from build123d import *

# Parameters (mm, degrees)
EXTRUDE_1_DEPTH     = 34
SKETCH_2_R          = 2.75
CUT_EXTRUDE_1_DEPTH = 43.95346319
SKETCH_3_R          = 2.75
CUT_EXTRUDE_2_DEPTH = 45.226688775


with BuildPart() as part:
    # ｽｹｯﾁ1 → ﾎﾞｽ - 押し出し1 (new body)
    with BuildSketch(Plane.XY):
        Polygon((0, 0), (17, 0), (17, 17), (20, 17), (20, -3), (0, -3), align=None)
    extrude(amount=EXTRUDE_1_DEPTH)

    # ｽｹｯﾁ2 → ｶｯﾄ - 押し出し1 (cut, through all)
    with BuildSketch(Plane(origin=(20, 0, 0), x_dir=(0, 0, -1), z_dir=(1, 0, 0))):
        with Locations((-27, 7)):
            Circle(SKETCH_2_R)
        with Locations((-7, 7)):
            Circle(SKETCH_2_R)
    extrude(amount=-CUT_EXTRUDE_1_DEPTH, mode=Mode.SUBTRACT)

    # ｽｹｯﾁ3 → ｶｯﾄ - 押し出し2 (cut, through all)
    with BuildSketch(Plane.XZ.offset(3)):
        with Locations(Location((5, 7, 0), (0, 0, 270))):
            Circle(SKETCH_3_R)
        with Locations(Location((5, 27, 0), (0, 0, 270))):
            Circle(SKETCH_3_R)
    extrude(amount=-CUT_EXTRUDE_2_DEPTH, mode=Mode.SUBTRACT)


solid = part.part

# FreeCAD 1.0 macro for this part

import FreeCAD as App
import Part
import Sketcher
Q = App.Units.Quantity


def add_polygon(sketch, points):
    """Adds a closed chain of lines whose ends are joined by coincident constraints."""
    first, n = sketch.GeometryCount, len(points)
    for a, b in zip(points, points[1:] + points[:1]):
        sketch.addGeometry(Part.LineSegment(App.Vector(*a, 0), App.Vector(*b, 0)), False)
    for i in range(n):
        sketch.addConstraint(Sketcher.Constraint("Coincident", first + i, 2, first + (i + 1) % n, 1))

doc = App.newDocument("Part")
params = doc.addObject("Spreadsheet::Sheet", "Params")
for row, (alias, value) in enumerate([
    ("sketch1_width", "17 mm"),
    ("sketch1_width2", "20 mm"),
    ("pad1_length", "34 mm"),
    ("sketch2_diameter", "5.5 mm"),
    ("sketch3_diameter", "5.5 mm"),
], start=1):
    params.set(f"A{row}", alias)
    params.set(f"B{row}", "=" + value)
    params.setAlias(f"B{row}", alias)

body = doc.addObject("PartDesign::Body", "Body")

sketch1 = doc.addObject("Sketcher::SketchObject", "Sketch")
body.addObject(sketch1)
sketch1.AttachmentSupport = (doc.XY_Plane, [""])
sketch1.MapMode = "FlatFace"
add_polygon(sketch1, [(17, 0), (0, 0), (0, -3), (20, -3), (20, 17), (17, 17)])
sketch1.addConstraint(Sketcher.Constraint("Horizontal", 0))
sketch1.addConstraint(Sketcher.Constraint("Vertical", 1))
sketch1.addConstraint(Sketcher.Constraint("Horizontal", 2))
sketch1.addConstraint(Sketcher.Constraint("Vertical", 3))
sketch1.addConstraint(Sketcher.Constraint("Horizontal", 4))
sketch1.addConstraint(Sketcher.Constraint("Vertical", 5))
sketch1.addConstraint(Sketcher.Constraint("Coincident", 0, 2, -1, 1))
sketch1.addConstraint(Sketcher.Constraint("Equal", 4, 1))
sketch1.addConstraint(Sketcher.Constraint("Equal", 2, 3))
sketch1.addConstraint(Sketcher.Constraint("DistanceX", 0, 2, 0, 1, Q("17 mm")))
sketch1.addConstraint(Sketcher.Constraint("DistanceX", 2, 1, 2, 2, Q("20 mm")))
sketch1.setExpression("Constraints[15]", "Params.sketch1_width")
sketch1.setExpression("Constraints[16]", "Params.sketch1_width2")
pad1 = doc.addObject("PartDesign::Pad", "Pad")
body.addObject(pad1)
pad1.Profile = sketch1
pad1.setExpression("Length", "Params.pad1_length")

sketch2 = doc.addObject("Sketcher::SketchObject", "Sketch001")
body.addObject(sketch2)
sketch2.AttachmentSupport = (doc.YZ_Plane, [""])
sketch2.MapMode = "FlatFace"
sketch2.AttachmentOffset = App.Placement(App.Vector(0, 0, 20), App.Rotation())
sketch2.addGeometry(Part.Circle(App.Vector(7, 27, 0), App.Vector(0, 0, 1), 2.8), False)
sketch2.addGeometry(Part.Circle(App.Vector(7, 7, 0), App.Vector(0, 0, 1), 2.8), False)
sketch2.addConstraint(Sketcher.Constraint("Equal", 0, 1))
sketch2.addConstraint(Sketcher.Constraint("Vertical", 0, 3, 1, 3))
sketch2.addConstraint(Sketcher.Constraint("Diameter", 0, Q("5.5 mm")))
sketch2.addConstraint(Sketcher.Constraint("DistanceX", -1, 1, 0, 3, Q("7 mm")))
sketch2.addConstraint(Sketcher.Constraint("DistanceY", -1, 1, 0, 3, Q("27 mm")))
sketch2.addConstraint(Sketcher.Constraint("DistanceY", -1, 1, 1, 3, Q("7 mm")))
sketch2.setExpression("Constraints[2]", "Params.sketch2_diameter")
pocket1 = doc.addObject("PartDesign::Pocket", "Pocket")
body.addObject(pocket1)
pocket1.Profile = sketch2
pocket1.Type = "ThroughAll"

sketch3 = doc.addObject("Sketcher::SketchObject", "Sketch002")
body.addObject(sketch3)
sketch3.AttachmentSupport = (doc.XZ_Plane, [""])
sketch3.MapMode = "FlatFace"
sketch3.AttachmentOffset = App.Placement(App.Vector(0, 0, 3), App.Rotation())
sketch3.addGeometry(Part.Circle(App.Vector(5, 7, 0), App.Vector(0, 0, 1), 2.8), False)
sketch3.addGeometry(Part.Circle(App.Vector(5, 27, 0), App.Vector(0, 0, 1), 2.8), False)
sketch3.addConstraint(Sketcher.Constraint("Equal", 0, 1))
sketch3.addConstraint(Sketcher.Constraint("Vertical", 0, 3, 1, 3))
sketch3.addConstraint(Sketcher.Constraint("Diameter", 0, Q("5.5 mm")))
sketch3.addConstraint(Sketcher.Constraint("DistanceX", -1, 1, 0, 3, Q("5 mm")))
sketch3.addConstraint(Sketcher.Constraint("DistanceY", -1, 1, 0, 3, Q("7 mm")))
sketch3.addConstraint(Sketcher.Constraint("DistanceY", -1, 1, 1, 3, Q("27 mm")))
sketch3.setExpression("Constraints[2]", "Params.sketch3_diameter")
pocket2 = doc.addObject("PartDesign::Pocket", "Pocket001")
body.addObject(pocket2)
pocket2.Profile = sketch3
pocket2.Type = "ThroughAll"

doc.recompute()
